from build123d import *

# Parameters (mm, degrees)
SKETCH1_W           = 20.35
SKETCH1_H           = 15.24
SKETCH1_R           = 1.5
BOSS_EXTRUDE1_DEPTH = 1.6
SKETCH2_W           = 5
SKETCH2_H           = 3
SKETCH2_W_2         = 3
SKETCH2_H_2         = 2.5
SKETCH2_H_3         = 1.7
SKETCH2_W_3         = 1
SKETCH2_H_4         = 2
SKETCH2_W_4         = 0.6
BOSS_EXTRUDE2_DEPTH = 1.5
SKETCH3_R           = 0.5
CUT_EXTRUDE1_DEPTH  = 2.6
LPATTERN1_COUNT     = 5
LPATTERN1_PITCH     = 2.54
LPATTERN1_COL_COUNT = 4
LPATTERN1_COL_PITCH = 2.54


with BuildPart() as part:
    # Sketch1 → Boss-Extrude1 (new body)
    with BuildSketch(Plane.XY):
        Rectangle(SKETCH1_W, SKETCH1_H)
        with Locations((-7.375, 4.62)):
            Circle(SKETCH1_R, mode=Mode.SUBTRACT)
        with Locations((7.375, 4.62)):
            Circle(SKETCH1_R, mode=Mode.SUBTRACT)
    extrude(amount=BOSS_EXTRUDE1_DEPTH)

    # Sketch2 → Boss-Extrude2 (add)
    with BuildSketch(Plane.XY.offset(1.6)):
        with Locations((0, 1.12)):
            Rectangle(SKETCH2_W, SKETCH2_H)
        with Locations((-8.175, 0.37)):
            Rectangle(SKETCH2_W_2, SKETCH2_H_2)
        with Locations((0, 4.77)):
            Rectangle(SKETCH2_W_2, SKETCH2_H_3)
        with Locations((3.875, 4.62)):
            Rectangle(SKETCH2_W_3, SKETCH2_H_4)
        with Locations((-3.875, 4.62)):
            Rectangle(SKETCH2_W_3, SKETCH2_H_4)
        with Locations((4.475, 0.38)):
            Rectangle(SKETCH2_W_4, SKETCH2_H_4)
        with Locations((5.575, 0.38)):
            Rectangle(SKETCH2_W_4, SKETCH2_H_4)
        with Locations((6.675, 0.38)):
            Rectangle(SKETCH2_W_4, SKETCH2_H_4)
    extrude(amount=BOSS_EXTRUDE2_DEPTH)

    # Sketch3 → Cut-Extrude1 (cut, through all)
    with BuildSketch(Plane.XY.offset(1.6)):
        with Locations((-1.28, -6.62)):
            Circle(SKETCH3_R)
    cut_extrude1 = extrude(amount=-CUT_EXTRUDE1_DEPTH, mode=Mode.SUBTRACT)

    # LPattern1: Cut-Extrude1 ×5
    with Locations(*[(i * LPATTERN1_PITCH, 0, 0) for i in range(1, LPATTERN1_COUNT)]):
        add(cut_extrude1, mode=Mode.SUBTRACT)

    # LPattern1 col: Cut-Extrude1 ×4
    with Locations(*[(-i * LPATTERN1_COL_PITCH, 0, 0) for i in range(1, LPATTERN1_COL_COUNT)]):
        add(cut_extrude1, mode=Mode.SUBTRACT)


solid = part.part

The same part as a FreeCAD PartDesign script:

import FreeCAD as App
import Part
import Sketcher

V = App.Vector
Q = App.Units.Quantity


def add_polygon(sketch, points):
    """Adds a closed chain of lines whose ends are joined by coincident constraints."""
    first, n = sketch.GeometryCount, len(points)
    for a, b in zip(points, points[1:] + points[:1]):
        sketch.addGeometry(Part.LineSegment(App.Vector(*a, 0), App.Vector(*b, 0)), False)
    for i in range(n):
        sketch.addConstraint(Sketcher.Constraint("Coincident", first + i, 2, first + (i + 1) % n, 1))

doc = App.newDocument("Part")
params = doc.addObject("Spreadsheet::Sheet", "Params")
for row, (alias, value) in enumerate([
    ("sketch1_diameter", "3 mm"),
    ("sketch1_width", "20.35 mm"),
    ("sketch1_height", "15.24 mm"),
    ("pad1_length", "1.6 mm"),
    ("sketch2_width", "5 mm"),
    ("sketch2_width2", "3 mm"),
    ("sketch2_width3", "1 mm"),
    ("sketch2_height", "2 mm"),
    ("sketch2_width4", "0.6 mm"),
    ("pad2_length", "1.5 mm"),
    ("sketch3_diameter", "1 mm"),
    ("linearpattern_pitch", "2.54 mm"),
    ("linearpattern2_pitch", "2.54 mm"),
], start=1):
    params.set(f"A{row}", alias)
    params.set(f"B{row}", "=" + value)
    params.setAlias(f"B{row}", alias)

body = doc.addObject("PartDesign::Body", "Body")

# Sketch on XY plane
sketch1 = body.newObject("Sketcher::SketchObject", "Sketch")
sketch1.AttachmentSupport = (doc.getObject("XY_Plane"), [""])
sketch1.MapMode = "FlatFace"
add_polygon(sketch1, [(-10.2, 7.6), (-10.2, -7.6), (10.2, -7.6), (10.2, 7.6)])  # lines 0-3
sketch1.addGeometry(Part.Circle(V(-7.4, 4.6, 0), V(0, 0, 1), 1.5), False)  # 4
sketch1.addGeometry(Part.Circle(V(7.4, 4.6, 0), V(0, 0, 1), 1.5), False)  # 5
sketch1.addConstraint(Sketcher.Constraint("Vertical", 0))
sketch1.addConstraint(Sketcher.Constraint("Horizontal", 1))
sketch1.addConstraint(Sketcher.Constraint("Vertical", 2))
sketch1.addConstraint(Sketcher.Constraint("Horizontal", 3))
sketch1.addConstraint(Sketcher.Constraint("Equal", 4, 5))
sketch1.addConstraint(Sketcher.Constraint("Symmetric", 0, 2, 2, 2, -1, 1))
sketch1.addConstraint(Sketcher.Constraint("Symmetric", 4, 3, 5, 3, -2))
sketch1.addConstraint(Sketcher.Constraint("Diameter", 4, Q("3 mm")))
sketch1.addConstraint(Sketcher.Constraint("DistanceY", 5, 3, 2, 2, Q("3 mm")))
sketch1.addConstraint(Sketcher.Constraint("DistanceX", 1, 1, 1, 2, Q("20.35 mm")))
sketch1.addConstraint(Sketcher.Constraint("DistanceY", 0, 2, 0, 1, Q("15.24 mm")))
sketch1.addConstraint(Sketcher.Constraint("DistanceX", 0, 2, 4, 3, Q("2.8 mm")))
sketch1.setExpression("Constraints[11]", "Params.sketch1_diameter")
sketch1.setExpression("Constraints[13]", "Params.sketch1_width")
sketch1.setExpression("Constraints[14]", "Params.sketch1_height")
pad1 = body.newObject("PartDesign::Pad", "Pad")
pad1.Profile = sketch1
pad1.setExpression("Length", "Params.pad1_length")

# Sketch on XY plane
sketch2 = body.newObject("Sketcher::SketchObject", "Sketch001")
sketch2.AttachmentSupport = (doc.getObject("XY_Plane"), [""])
sketch2.MapMode = "FlatFace"
sketch2.AttachmentOffset = App.Placement(V(0, 0, 1.6), App.Rotation())
add_polygon(sketch2, [(-2.5, 2.6), (-2.5, -0.4), (2.5, -0.4), (2.5, 2.6)])  # lines 0-3
add_polygon(sketch2, [(-9.7, 1.6), (-9.7, -0.9), (-6.7, -0.9), (-6.7, 1.6)])  # lines 4-7
add_polygon(sketch2, [(-1.5, 5.6), (-1.5, 3.9), (1.5, 3.9), (1.5, 5.6)])  # lines 8-11
add_polygon(sketch2, [(3.4, 5.6), (3.4, 3.6), (4.4, 3.6), (4.4, 5.6)])  # lines 12-15
add_polygon(sketch2, [(-4.4, 5.6), (-4.4, 3.6), (-3.4, 3.6), (-3.4, 5.6)])  # lines 16-19
add_polygon(sketch2, [(4.2, 1.4), (4.2, -0.6), (4.8, -0.6), (4.8, 1.4)])  # lines 20-23
add_polygon(sketch2, [(5.3, 1.4), (5.3, -0.6), (5.9, -0.6), (5.9, 1.4)])  # lines 24-27
add_polygon(sketch2, [(6.4, 1.4), (6.4, -0.6), (7, -0.6), (7, 1.4)])  # lines 28-31
sketch2.addConstraint(Sketcher.Constraint("Vertical", 0))
sketch2.addConstraint(Sketcher.Constraint("Horizontal", 1))
sketch2.addConstraint(Sketcher.Constraint("Vertical", 2))
sketch2.addConstraint(Sketcher.Constraint("Horizontal", 3))
sketch2.addConstraint(Sketcher.Constraint("Vertical", 4))
sketch2.addConstraint(Sketcher.Constraint("Horizontal", 5))
sketch2.addConstraint(Sketcher.Constraint("Vertical", 6))
sketch2.addConstraint(Sketcher.Constraint("Horizontal", 7))
sketch2.addConstraint(Sketcher.Constraint("Vertical", 8))
sketch2.addConstraint(Sketcher.Constraint("Horizontal", 9))
sketch2.addConstraint(Sketcher.Constraint("Vertical", 10))
sketch2.addConstraint(Sketcher.Constraint("Horizontal", 11))
sketch2.addConstraint(Sketcher.Constraint("Vertical", 12))
sketch2.addConstraint(Sketcher.Constraint("Horizontal", 13))
sketch2.addConstraint(Sketcher.Constraint("Vertical", 14))
sketch2.addConstraint(Sketcher.Constraint("Horizontal", 15))
sketch2.addConstraint(Sketcher.Constraint("Vertical", 16))
sketch2.addConstraint(Sketcher.Constraint("Horizontal", 17))
sketch2.addConstraint(Sketcher.Constraint("Vertical", 18))
sketch2.addConstraint(Sketcher.Constraint("Horizontal", 19))
sketch2.addConstraint(Sketcher.Constraint("Vertical", 20))
sketch2.addConstraint(Sketcher.Constraint("Horizontal", 21))
sketch2.addConstraint(Sketcher.Constraint("Vertical", 22))
sketch2.addConstraint(Sketcher.Constraint("Horizontal", 23))
sketch2.addConstraint(Sketcher.Constraint("Vertical", 24))
sketch2.addConstraint(Sketcher.Constraint("Horizontal", 25))
sketch2.addConstraint(Sketcher.Constraint("Vertical", 26))
sketch2.addConstraint(Sketcher.Constraint("Horizontal", 27))
sketch2.addConstraint(Sketcher.Constraint("Vertical", 28))
sketch2.addConstraint(Sketcher.Constraint("Horizontal", 29))
sketch2.addConstraint(Sketcher.Constraint("Vertical", 30))
sketch2.addConstraint(Sketcher.Constraint("Horizontal", 31))
sketch2.addConstraint(Sketcher.Constraint("Symmetric", 13, 2, 16, 2, -2))
sketch2.addConstraint(Sketcher.Constraint("Symmetric", 15, 2, 18, 2, -2))
sketch2.addConstraint(Sketcher.Constraint("Horizontal", 11, 2, 14, 2))
sketch2.addConstraint(Sketcher.Constraint("Horizontal", 21, 2, 24, 2))
sketch2.addConstraint(Sketcher.Constraint("Horizontal", 23, 2, 26, 2))
sketch2.addConstraint(Sketcher.Constraint("Horizontal", 25, 2, 28, 2))
sketch2.addConstraint(Sketcher.Constraint("Horizontal", 27, 2, 30, 2))
sketch2.addConstraint(Sketcher.Constraint("Equal", 7, 9))
sketch2.addConstraint(Sketcher.Constraint("Equal", 23, 25))
sketch2.addConstraint(Sketcher.Constraint("Equal", 27, 29))
sketch2.addConstraint(Sketcher.Constraint("Equal", 11, 0))
sketch2.addConstraint(Sketcher.Constraint("Equal", 18, 20))
sketch2.addConstraint(Sketcher.Constraint("DistanceX", 1, 1, 1, 2, Q("5 mm")))
sketch2.addConstraint(Sketcher.Constraint("DistanceX", 5, 1, 5, 2, Q("3 mm")))
sketch2.addConstraint(Sketcher.Constraint("DistanceX", 13, 1, 13, 2, Q("1 mm")))
sketch2.addConstraint(Sketcher.Constraint("DistanceY", 12, 2, 12, 1, Q("2 mm")))
sketch2.addConstraint(Sketcher.Constraint("DistanceX", 21, 1, 21, 2, Q("0.6 mm")))
sketch2.addConstraint(Sketcher.Constraint("DistanceY", 4, 2, 4, 1, Q("2.5 mm")))
sketch2.addConstraint(Sketcher.Constraint("DistanceY", 8, 2, 8, 1, Q("1.7 mm")))
sketch2.addConstraint(Sketcher.Constraint("DistanceY", 6, 2, 3, 2, Q("1 mm")))
sketch2.addConstraint(Sketcher.Constraint("DistanceX", 3, 2, 8, 2, Q("1 mm")))
sketch2.addConstraint(Sketcher.Constraint("DistanceY", 2, 2, 10, 2, Q("3 mm")))
sketch2.addConstraint(Sketcher.Constraint("DistanceX", 0, 2, -1, 1, Q("2.5 mm")))
sketch2.addConstraint(Sketcher.Constraint("DistanceX", 6, 2, 16, 2, Q("2.3 mm")))
sketch2.addConstraint(Sketcher.Constraint("DistanceX", 20, 2, 13, 2, Q("0.2 mm")))
sketch2.addConstraint(Sketcher.Constraint("DistanceX", 21, 2, 24, 2, Q("0.5 mm")))
sketch2.addConstraint(Sketcher.Constraint("DistanceX", 25, 2, 28, 2, Q("0.5 mm")))
sketch2.addConstraint(Sketcher.Constraint("DistanceY", 0, 2, -1, 1, Q("0.38 mm")))
sketch2.addConstraint(Sketcher.Constraint("DistanceY", 20, 2, -1, 1, Q("0.62 mm")))
sketch2.addConstraint(Sketcher.Constraint("DistanceX", 4, 2, -1, 1, Q("9.675 mm")))
sketch2.setExpression("Constraints[76]", "Params.sketch2_width")
sketch2.setExpression("Constraints[77]", "Params.sketch2_width2")
sketch2.setExpression("Constraints[78]", "Params.sketch2_width3")
sketch2.setExpression("Constraints[79]", "Params.sketch2_height")
sketch2.setExpression("Constraints[80]", "Params.sketch2_width4")
pad2 = body.newObject("PartDesign::Pad", "Pad001")
pad2.Profile = sketch2
pad2.setExpression("Length", "Params.pad2_length")

# Sketch on XY plane
sketch3 = body.newObject("Sketcher::SketchObject", "Sketch002")
sketch3.AttachmentSupport = (doc.getObject("XY_Plane"), [""])
sketch3.MapMode = "FlatFace"
sketch3.AttachmentOffset = App.Placement(V(0, 0, 1.6), App.Rotation())
sketch3.addGeometry(Part.Circle(V(-1.3, -6.6, 0), V(0, 0, 1), 0.5), False)
sketch3.addConstraint(Sketcher.Constraint("Diameter", 0, Q("1 mm")))
sketch3.addConstraint(Sketcher.Constraint("DistanceX", 0, 3, -1, 1, Q("1.28 mm")))
sketch3.addConstraint(Sketcher.Constraint("DistanceY", 0, 3, -1, 1, Q("6.62 mm")))
sketch3.setExpression("Constraints[0]", "Params.sketch3_diameter")
pocket1 = body.newObject("PartDesign::Pocket", "Pocket")
pocket1.Profile = sketch3
pocket1.Type = "ThroughAll"
doc.recompute()

linearpattern = body.newObject("PartDesign::LinearPattern", "LinearPattern")
linearpattern.Originals = [pocket1]
linearpattern.Direction = (doc.getObject("X_Axis"), [""])
linearpattern.Mode = "offset"
linearpattern.setExpression("Offset", "Params.linearpattern_pitch")
linearpattern.Occurrences = 5
body.Tip = linearpattern
doc.recompute()

linearpattern2 = body.newObject("PartDesign::LinearPattern", "LinearPattern001")
linearpattern2.Originals = [pocket1]
linearpattern2.Direction = (doc.getObject("X_Axis"), [""])
linearpattern2.Mode = "offset"
linearpattern2.setExpression("Offset", "Params.linearpattern2_pitch")
linearpattern2.Occurrences = 4
linearpattern2.Reversed = True
body.Tip = linearpattern2

doc.recompute()
